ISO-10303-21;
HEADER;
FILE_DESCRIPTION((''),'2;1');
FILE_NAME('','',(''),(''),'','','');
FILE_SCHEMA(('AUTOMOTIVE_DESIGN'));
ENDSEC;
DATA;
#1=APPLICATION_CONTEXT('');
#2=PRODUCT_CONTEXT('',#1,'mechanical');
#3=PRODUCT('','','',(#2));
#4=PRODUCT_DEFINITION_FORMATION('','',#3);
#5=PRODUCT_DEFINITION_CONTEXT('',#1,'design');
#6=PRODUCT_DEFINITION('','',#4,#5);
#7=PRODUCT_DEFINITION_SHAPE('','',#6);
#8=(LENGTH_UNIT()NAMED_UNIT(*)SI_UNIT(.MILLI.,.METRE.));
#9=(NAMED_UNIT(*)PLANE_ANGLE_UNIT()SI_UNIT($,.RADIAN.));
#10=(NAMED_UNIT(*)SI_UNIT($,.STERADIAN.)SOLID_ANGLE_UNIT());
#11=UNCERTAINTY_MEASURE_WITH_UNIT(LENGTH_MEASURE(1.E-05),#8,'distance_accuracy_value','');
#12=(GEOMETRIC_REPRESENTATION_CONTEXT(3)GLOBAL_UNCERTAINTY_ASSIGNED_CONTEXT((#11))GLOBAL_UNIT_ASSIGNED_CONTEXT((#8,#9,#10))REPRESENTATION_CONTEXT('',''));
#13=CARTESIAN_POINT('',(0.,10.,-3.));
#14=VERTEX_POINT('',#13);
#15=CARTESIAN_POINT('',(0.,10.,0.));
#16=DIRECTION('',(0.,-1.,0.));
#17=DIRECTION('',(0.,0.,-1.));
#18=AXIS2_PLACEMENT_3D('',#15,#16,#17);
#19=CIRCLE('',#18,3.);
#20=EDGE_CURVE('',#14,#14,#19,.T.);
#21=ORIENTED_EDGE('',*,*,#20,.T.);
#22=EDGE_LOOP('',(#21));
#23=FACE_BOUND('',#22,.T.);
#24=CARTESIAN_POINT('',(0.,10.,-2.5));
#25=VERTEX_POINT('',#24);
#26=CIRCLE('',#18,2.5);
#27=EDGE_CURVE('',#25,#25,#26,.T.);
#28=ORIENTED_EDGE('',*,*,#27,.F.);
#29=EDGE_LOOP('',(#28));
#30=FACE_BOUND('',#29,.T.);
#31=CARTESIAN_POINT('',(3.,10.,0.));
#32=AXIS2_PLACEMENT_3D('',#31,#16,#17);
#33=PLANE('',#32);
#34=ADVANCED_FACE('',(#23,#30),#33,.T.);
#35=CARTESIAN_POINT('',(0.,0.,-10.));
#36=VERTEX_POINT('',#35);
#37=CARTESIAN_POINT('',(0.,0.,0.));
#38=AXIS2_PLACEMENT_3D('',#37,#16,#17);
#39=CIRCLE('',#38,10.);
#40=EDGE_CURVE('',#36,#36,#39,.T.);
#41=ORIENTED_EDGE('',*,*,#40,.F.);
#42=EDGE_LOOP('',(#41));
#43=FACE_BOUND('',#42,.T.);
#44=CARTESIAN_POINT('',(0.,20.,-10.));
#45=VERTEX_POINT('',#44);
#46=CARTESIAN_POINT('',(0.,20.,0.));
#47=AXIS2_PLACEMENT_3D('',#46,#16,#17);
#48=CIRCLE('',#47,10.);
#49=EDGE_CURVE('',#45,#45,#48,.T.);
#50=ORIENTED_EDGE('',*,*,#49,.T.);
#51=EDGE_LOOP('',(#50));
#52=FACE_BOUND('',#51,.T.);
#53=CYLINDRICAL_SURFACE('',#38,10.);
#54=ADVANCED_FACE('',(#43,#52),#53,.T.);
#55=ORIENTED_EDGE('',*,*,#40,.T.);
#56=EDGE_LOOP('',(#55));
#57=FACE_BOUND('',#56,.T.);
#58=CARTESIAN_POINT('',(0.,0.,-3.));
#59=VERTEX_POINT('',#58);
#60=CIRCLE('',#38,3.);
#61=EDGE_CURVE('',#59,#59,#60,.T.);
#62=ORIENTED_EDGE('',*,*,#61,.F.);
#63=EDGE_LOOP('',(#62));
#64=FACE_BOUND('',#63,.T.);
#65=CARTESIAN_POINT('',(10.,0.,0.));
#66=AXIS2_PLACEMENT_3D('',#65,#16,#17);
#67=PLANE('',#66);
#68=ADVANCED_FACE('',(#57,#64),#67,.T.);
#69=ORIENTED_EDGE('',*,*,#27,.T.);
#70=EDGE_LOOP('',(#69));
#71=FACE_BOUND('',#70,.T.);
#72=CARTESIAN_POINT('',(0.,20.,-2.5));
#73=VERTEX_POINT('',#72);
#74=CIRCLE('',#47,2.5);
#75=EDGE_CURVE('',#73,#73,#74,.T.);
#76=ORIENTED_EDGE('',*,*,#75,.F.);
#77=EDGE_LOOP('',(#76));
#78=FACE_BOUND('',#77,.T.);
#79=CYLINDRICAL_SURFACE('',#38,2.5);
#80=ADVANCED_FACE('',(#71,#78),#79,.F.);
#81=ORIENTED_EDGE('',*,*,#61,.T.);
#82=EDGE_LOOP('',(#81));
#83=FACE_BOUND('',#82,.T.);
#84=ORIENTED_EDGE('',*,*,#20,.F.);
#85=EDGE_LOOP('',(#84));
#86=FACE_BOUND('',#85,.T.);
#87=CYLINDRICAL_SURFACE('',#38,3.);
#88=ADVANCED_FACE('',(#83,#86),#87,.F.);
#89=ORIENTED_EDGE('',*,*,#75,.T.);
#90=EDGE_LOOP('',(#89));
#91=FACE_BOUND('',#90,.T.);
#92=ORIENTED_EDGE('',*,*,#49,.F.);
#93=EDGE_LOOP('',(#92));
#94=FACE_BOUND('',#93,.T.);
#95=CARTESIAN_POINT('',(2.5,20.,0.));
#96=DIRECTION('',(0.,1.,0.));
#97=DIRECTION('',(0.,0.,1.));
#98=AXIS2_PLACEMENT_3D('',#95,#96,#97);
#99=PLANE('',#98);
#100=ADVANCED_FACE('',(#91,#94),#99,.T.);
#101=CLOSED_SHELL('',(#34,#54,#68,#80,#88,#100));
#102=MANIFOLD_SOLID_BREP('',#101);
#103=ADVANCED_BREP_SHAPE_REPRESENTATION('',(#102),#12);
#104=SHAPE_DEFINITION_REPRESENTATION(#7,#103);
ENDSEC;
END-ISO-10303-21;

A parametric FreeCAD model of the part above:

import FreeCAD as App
import Part
import Sketcher

V = App.Vector


def add_polygon(sketch, points):
    """Adds a closed chain of lines whose ends are joined by coincident constraints."""
    first, n = sketch.GeometryCount, len(points)
    for a, b in zip(points, points[1:] + points[:1]):
        sketch.addGeometry(Part.LineSegment(App.Vector(*a, 0), App.Vector(*b, 0)), False)
    for i in range(n):
        sketch.addConstraint(Sketcher.Constraint("Coincident", first + i, 2, first + (i + 1) % n, 1))

doc = App.newDocument("Part")
body = doc.addObject("PartDesign::Body", "Body")

# Sketch on XY plane
sketch1 = doc.addObject("Sketcher::SketchObject", "Sketch")
body.addObject(sketch1)
sketch1.AttachmentSupport = (doc.XY_Plane, [""])
sketch1.MapMode = "FlatFace"
add_polygon(sketch1, [(3, 10), (3, 0), (10, 0), (10, 20), (2.5, 20), (2.5, 10)])  # lines 0-5
sketch1.addConstraint(Sketcher.Constraint("Vertical", 0))
sketch1.addConstraint(Sketcher.Constraint("Horizontal", 1))
sketch1.addConstraint(Sketcher.Constraint("Vertical", 2))
sketch1.addConstraint(Sketcher.Constraint("Horizontal", 3))
sketch1.addConstraint(Sketcher.Constraint("Vertical", 4))
sketch1.addConstraint(Sketcher.Constraint("Horizontal", 5))
sketch1.addConstraint(Sketcher.Constraint("PointOnObject", 0, 2, -1))
sketch1.addConstraint(Sketcher.Constraint("Equal", 0, 4))
sketch1.addConstraint(Sketcher.Constraint("DistanceX", 1, 1, 1, 2, 7.0))
sketch1.addConstraint(Sketcher.Constraint("DistanceY", 0, 2, 0, 1, 10.0))
sketch1.addConstraint(Sketcher.Constraint("DistanceX", 3, 2, 3, 1, 7.5))
sketch1.addConstraint(Sketcher.Constraint("DistanceX", -1, 1, 0, 2, 3.0))
revolution = doc.addObject("PartDesign::Revolution", "Revolution")
body.addObject(revolution)
revolution.Profile = sketch1
revolution.ReferenceAxis = (sketch1, ["V_Axis"])
revolution.Angle = 360

doc.recompute()
